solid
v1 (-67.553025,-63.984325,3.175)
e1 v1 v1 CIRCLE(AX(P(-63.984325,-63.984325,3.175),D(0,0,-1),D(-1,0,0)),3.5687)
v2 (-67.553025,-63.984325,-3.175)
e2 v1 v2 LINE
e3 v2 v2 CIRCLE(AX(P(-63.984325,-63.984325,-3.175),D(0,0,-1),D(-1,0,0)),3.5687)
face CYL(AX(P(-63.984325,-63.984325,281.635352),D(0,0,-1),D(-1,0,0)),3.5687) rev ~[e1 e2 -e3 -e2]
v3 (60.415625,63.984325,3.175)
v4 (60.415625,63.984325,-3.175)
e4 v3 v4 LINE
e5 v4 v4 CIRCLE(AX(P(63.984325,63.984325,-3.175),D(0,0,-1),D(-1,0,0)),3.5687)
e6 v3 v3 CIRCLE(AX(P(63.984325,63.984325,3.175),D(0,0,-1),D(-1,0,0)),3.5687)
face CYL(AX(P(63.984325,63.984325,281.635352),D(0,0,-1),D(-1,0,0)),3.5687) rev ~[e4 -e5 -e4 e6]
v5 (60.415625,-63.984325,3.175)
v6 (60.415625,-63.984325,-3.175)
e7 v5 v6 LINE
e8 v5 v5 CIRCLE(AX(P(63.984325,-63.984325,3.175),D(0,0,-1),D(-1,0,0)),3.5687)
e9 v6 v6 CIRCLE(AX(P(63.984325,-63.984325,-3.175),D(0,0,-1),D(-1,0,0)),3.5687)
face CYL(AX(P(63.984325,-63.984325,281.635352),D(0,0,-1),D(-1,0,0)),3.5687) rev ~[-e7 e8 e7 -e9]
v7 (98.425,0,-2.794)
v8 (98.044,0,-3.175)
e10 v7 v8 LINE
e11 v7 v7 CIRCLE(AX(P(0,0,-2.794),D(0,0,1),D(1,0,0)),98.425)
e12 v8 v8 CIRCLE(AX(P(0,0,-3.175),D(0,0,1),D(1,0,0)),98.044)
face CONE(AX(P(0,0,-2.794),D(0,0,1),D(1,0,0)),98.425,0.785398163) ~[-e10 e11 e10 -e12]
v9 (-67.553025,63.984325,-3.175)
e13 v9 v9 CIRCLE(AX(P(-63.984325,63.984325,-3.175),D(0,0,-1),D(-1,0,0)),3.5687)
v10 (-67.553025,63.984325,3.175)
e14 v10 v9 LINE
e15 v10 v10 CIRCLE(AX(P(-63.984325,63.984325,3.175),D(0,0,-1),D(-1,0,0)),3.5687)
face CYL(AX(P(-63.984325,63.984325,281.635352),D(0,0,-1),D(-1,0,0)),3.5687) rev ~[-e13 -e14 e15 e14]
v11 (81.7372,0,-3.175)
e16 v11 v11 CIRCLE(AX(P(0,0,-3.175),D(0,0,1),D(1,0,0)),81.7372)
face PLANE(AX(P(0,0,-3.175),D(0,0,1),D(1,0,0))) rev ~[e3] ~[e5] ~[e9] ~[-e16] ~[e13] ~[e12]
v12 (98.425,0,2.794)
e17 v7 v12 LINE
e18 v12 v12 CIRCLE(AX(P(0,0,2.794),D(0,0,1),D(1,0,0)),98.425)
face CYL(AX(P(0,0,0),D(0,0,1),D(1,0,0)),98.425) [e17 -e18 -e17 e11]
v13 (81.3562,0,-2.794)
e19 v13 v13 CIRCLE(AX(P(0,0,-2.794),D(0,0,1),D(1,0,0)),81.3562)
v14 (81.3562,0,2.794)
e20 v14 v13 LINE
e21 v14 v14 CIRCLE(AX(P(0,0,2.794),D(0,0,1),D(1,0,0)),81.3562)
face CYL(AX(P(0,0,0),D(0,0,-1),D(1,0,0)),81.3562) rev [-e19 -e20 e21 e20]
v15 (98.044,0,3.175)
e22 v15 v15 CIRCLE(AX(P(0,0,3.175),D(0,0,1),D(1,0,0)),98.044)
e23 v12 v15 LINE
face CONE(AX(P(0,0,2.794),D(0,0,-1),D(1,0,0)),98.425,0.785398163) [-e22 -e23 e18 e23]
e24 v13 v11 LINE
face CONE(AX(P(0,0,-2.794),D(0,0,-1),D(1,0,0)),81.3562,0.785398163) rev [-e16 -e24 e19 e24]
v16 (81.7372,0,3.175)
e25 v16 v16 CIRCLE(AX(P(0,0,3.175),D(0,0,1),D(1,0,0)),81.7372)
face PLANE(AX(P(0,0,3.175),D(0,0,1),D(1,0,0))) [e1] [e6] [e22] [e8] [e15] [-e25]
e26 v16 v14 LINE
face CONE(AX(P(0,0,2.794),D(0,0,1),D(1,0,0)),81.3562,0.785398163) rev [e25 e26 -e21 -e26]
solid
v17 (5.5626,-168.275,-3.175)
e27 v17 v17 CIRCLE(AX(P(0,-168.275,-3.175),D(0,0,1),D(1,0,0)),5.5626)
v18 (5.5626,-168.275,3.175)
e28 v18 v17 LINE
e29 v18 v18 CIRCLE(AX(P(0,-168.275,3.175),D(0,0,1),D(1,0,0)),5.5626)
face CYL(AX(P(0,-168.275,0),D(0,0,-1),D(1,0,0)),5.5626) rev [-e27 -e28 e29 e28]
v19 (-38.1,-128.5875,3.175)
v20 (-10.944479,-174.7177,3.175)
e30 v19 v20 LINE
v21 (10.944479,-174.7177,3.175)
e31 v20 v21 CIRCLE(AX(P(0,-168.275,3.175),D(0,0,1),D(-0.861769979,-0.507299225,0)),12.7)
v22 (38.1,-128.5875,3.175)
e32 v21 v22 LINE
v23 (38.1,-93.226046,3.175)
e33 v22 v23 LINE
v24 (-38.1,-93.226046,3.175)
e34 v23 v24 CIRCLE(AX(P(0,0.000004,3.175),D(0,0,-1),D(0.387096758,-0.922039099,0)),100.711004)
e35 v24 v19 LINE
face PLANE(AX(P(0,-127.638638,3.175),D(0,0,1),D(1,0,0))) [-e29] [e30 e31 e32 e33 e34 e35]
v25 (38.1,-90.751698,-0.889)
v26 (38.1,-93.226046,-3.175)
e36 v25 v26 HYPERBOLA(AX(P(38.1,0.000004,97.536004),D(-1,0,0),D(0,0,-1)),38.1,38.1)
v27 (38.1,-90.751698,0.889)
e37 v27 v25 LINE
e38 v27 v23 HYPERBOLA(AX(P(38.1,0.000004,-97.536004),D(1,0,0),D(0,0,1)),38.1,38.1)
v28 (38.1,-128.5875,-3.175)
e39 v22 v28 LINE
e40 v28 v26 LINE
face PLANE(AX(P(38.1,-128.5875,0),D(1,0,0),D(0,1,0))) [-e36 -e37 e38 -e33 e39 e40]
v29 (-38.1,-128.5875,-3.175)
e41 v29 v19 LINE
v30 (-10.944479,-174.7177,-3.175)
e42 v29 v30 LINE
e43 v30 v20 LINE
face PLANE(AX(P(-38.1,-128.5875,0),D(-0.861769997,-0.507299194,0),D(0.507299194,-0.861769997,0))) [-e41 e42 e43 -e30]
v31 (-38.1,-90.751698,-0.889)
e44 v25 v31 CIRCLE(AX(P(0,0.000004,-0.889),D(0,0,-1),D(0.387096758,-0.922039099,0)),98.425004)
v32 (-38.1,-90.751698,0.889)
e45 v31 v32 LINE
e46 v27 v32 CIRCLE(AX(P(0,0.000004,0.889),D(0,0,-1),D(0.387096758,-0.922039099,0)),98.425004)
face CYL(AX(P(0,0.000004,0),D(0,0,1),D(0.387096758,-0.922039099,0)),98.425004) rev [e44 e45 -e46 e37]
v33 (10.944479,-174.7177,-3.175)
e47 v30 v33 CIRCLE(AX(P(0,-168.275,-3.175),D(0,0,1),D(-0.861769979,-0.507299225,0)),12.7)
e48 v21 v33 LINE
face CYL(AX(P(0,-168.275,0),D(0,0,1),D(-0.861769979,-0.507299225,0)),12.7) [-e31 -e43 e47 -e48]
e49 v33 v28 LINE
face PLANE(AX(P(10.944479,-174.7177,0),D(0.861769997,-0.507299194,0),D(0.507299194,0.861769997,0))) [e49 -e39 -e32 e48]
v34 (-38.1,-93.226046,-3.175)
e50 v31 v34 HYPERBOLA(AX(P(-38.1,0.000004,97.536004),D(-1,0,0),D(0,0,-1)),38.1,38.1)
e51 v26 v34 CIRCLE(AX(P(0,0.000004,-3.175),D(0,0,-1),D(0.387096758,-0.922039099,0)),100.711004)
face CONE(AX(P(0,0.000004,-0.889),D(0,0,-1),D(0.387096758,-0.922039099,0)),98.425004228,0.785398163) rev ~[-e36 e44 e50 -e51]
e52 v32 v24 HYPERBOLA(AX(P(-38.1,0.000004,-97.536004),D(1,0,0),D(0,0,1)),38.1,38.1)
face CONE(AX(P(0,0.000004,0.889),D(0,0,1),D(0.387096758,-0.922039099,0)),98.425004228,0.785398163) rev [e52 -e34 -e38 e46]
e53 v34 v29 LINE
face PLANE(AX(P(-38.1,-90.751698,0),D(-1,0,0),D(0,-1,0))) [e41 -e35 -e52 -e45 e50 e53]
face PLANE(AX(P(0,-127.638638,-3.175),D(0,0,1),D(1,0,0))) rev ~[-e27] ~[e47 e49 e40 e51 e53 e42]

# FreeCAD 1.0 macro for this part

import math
import FreeCAD as App
import Part
import Sketcher
from FreeCAD import Vector
Q = App.Units.Quantity


def edges_at(feature, points):
    """Names of the edges that pass closest to the given points."""
    edges = feature.Shape.Edges
    near = lambda p: min(range(len(edges)), key=lambda i: edges[i].distToShape(Part.Vertex(*p))[0])
    return sorted({f"Edge{near(p) + 1}" for p in points})

doc = App.newDocument("Part")
body = doc.addObject("PartDesign::Body", "Body")

# Sketch on XY plane
sketch1 = doc.addObject("Sketcher::SketchObject", "Sketch")
body.addObject(sketch1)
sketch1.AttachmentSupport = (doc.XY_Plane, [""])
sketch1.MapMode = "FlatFace"
sketch1.addGeometry(Part.ArcOfCircle(Part.Circle(Vector(0, 0, 0), Vector(0, 0, 1), 98), math.radians(-113), math.radians(-67)), False)
sketch1.addGeometry(Part.LineSegment(Vector(-38, -91, 0), Vector(-38, -129, 0)), False)
sketch1.addGeometry(Part.LineSegment(Vector(-38, -129, 0), Vector(-11, -175, 0)), False)
sketch1.addGeometry(Part.ArcOfCircle(Part.Circle(Vector(0, -168, 0), Vector(0, 0, 1), 13), math.radians(-150), math.radians(-30)), False)
sketch1.addGeometry(Part.LineSegment(Vector(11, -175, 0), Vector(38, -129, 0)), False)
sketch1.addGeometry(Part.LineSegment(Vector(38, -129, 0), Vector(38, -91, 0)), False)
sketch1.addGeometry(Part.Circle(Vector(0, -168, 0), Vector(0, 0, 1), 6), False)
sketch1.addConstraint(Sketcher.Constraint("Coincident", 0, 1, 1, 1))
sketch1.addConstraint(Sketcher.Constraint("Coincident", 1, 2, 2, 1))
sketch1.addConstraint(Sketcher.Constraint("Tangent", 2, 2, 3, 1))
sketch1.addConstraint(Sketcher.Constraint("Tangent", 3, 2, 4, 1))
sketch1.addConstraint(Sketcher.Constraint("Coincident", 4, 2, 5, 1))
sketch1.addConstraint(Sketcher.Constraint("Coincident", 5, 2, 0, 2))
sketch1.addConstraint(Sketcher.Constraint("Vertical", 1))
sketch1.addConstraint(Sketcher.Constraint("Vertical", 5))
sketch1.addConstraint(Sketcher.Constraint("Coincident", 0, 3, -1, 1))
sketch1.addConstraint(Sketcher.Constraint("Coincident", 6, 3, 3, 3))
sketch1.addConstraint(Sketcher.Constraint("Symmetric", 2, 2, 3, 2, -2))
sketch1.addConstraint(Sketcher.Constraint("Horizontal", 1, 2, 4, 2))
sketch1.addConstraint(Sketcher.Constraint("Radius", 3, Q("0.5 in")))
sketch1.addConstraint(Sketcher.Constraint("Diameter", 6, Q("0.438 in")))
sketch1.addConstraint(Sketcher.Constraint("Radius", 0, Q("3.8750002 in")))
sketch1.addConstraint(Sketcher.Constraint("DistanceX", 1, 2, 4, 2, Q("3 in")))
sketch1.addConstraint(Sketcher.Constraint("DistanceY", 3, 3, -1, 1, Q("6.625 in")))
sketch1.addConstraint(Sketcher.Constraint("DistanceY", 1, 2, -1, 1, Q("5.0625 in")))
pad1 = doc.addObject("PartDesign::Pad", "Pad")
body.addObject(pad1)
pad1.Profile = sketch1
pad1.Length = Q("0.25 in")
pad1.Midplane = True
doc.recompute()

chamfer = doc.addObject("PartDesign::Chamfer", "Chamfer")
body.addObject(chamfer)
chamfer.Base = (pad1, edges_at(pad1, [(0, -98.425, 3.175), (0, -98.425, -3.175)]))
chamfer.Size = Q("0.09 in")
body2 = doc.addObject("PartDesign::Body", "Body001")

# Sketch on XY plane
sketch2 = doc.addObject("Sketcher::SketchObject", "Sketch001")
body2.addObject(sketch2)
sketch2.AttachmentSupport = (doc.getObject("XY_Plane001"), [""])
sketch2.MapMode = "FlatFace"
sketch2.addGeometry(Part.Circle(Vector(0, 0, 0), Vector(0, 0, 1), 98), False)
sketch2.addGeometry(Part.Circle(Vector(0, 0, 0), Vector(0, 0, 1), 81), False)
sketch2.addConstraint(Sketcher.Constraint("Coincident", 0, 3, -1, 1))
sketch2.addConstraint(Sketcher.Constraint("Coincident", 1, 3, -1, 1))
sketch2.addConstraint(Sketcher.Constraint("Diameter", 0, Q("7.75 in")))
sketch2.addConstraint(Sketcher.Constraint("Diameter", 1, Q("6.406 in")))
pad2 = doc.addObject("PartDesign::Pad", "Pad001")
body2.addObject(pad2)
pad2.Profile = sketch2
pad2.Length = Q("0.25 in")
pad2.Midplane = True
doc.recompute()

chamfer2 = doc.addObject("PartDesign::Chamfer", "Chamfer001")
body2.addObject(chamfer2)
chamfer2.Base = (pad2, edges_at(pad2, [
    (-98.425, 0, 3.175),
    (-81.356, 0, 3.175),
    (-81.356, 0, -3.175),
    (-98.425, 0, -3.175),
]))
chamfer2.Size = Q("0.015 in")

# Sketch on XY plane
sketch3 = doc.addObject("Sketcher::SketchObject", "Sketch002")
body2.addObject(sketch3)
sketch3.AttachmentSupport = (doc.getObject("XY_Plane001"), [""])
sketch3.MapMode = "FlatFace"
sketch3.AttachmentOffset = App.Placement(Vector(0, 0, 0.125 * 25.4), App.Rotation())
sketch3.addGeometry(Part.Circle(Vector(-64, -64, 0), Vector(0, 0, 1), 3.6), False)
sketch3.addGeometry(Part.Circle(Vector(-64, 64, 0), Vector(0, 0, 1), 3.6), False)
sketch3.addGeometry(Part.Circle(Vector(64, 64, 0), Vector(0, 0, 1), 3.6), False)
sketch3.addGeometry(Part.Circle(Vector(64, -64, 0), Vector(0, 0, 1), 3.6), False)
sketch3.addConstraint(Sketcher.Constraint("Equal", 0, 1))
sketch3.addConstraint(Sketcher.Constraint("Equal", 1, 2))
sketch3.addConstraint(Sketcher.Constraint("Equal", 2, 3))
sketch3.addConstraint(Sketcher.Constraint("Symmetric", 0, 3, 2, 3, -1, 1))
sketch3.addConstraint(Sketcher.Constraint("Symmetric", 1, 3, 3, 3, -1, 1))
sketch3.addConstraint(Sketcher.Constraint("Symmetric", 1, 3, 2, 3, -2))
sketch3.addConstraint(Sketcher.Constraint("Diameter", 0, Q("0.281 in")))
sketch3.addConstraint(Sketcher.Constraint("DistanceY", 0, 3, 1, 3, 127.96865))
sketch3.addConstraint(Sketcher.Constraint("DistanceX", 1, 3, 2, 3, 127.96865))
doc.recompute()
hole = doc.addObject("PartDesign::Hole", "Hole")
body2.addObject(hole)
hole.Profile = sketch3
hole.ThreadType = "None"
hole.Diameter = Q("0.281 in")
hole.DepthType = "ThroughAll"

doc.recompute()
